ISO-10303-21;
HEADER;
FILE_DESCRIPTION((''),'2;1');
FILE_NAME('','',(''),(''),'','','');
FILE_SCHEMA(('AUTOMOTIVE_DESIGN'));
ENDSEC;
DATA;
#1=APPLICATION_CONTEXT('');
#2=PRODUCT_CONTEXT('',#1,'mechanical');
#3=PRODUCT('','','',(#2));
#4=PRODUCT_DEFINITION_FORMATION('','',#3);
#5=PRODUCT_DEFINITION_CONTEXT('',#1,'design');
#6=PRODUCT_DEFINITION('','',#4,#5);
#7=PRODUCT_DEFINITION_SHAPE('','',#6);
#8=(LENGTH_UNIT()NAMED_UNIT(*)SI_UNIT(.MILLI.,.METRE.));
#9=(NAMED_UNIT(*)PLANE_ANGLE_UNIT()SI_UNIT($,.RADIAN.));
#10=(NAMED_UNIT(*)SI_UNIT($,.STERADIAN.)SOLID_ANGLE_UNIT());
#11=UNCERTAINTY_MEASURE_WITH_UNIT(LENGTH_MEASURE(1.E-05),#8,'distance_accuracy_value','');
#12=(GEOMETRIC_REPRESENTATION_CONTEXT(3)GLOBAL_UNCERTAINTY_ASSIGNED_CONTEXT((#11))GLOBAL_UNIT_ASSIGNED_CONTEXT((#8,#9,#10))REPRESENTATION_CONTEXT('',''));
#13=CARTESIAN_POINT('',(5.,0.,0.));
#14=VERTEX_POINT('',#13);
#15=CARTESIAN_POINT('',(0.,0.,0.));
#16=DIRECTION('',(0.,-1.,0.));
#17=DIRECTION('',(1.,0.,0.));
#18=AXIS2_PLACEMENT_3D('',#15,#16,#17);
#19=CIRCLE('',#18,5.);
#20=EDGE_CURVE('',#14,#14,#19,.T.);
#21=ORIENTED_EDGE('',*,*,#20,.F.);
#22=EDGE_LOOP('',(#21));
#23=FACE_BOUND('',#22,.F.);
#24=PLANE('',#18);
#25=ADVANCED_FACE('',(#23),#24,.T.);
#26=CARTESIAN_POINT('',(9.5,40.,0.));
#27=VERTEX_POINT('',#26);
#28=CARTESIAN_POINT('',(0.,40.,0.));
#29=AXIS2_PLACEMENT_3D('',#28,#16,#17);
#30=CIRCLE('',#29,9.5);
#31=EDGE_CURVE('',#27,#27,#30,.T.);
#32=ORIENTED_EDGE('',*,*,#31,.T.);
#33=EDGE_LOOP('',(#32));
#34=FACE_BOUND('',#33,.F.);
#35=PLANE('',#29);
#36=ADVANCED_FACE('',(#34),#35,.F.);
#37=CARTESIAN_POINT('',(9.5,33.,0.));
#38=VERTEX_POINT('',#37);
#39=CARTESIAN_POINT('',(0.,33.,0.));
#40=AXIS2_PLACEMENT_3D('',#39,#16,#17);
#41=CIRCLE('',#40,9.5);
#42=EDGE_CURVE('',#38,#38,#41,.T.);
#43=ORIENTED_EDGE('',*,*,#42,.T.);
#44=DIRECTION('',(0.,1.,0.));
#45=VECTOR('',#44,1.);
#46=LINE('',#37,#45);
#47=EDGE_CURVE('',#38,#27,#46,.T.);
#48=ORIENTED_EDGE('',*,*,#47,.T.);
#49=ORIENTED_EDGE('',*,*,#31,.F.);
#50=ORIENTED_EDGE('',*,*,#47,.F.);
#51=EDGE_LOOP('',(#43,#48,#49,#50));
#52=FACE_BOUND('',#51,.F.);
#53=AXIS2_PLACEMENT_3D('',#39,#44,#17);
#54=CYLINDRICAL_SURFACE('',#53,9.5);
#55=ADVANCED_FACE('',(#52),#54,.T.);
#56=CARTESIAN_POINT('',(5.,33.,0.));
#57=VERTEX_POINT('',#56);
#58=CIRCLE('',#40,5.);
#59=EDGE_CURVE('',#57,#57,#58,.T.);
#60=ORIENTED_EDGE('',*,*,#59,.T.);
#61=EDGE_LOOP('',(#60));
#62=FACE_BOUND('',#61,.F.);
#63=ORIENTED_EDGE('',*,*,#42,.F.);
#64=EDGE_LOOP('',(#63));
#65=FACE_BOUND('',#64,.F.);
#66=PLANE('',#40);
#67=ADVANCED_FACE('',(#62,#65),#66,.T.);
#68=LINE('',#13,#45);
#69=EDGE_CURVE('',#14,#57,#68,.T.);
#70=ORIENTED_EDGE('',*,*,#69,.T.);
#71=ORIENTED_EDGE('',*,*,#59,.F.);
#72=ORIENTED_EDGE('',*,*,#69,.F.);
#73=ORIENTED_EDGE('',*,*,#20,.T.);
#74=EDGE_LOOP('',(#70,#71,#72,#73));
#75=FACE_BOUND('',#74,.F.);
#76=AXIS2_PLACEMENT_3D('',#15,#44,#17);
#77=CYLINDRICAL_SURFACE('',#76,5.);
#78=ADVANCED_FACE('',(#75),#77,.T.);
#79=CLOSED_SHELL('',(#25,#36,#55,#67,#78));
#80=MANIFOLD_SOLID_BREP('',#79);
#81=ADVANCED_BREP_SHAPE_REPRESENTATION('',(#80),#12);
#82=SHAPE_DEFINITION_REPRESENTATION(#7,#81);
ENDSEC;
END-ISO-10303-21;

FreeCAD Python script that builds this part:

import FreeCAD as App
import Part
import Sketcher
from FreeCAD import Vector


def add_polygon(sketch, points):
    """Adds a closed chain of lines whose ends are joined by coincident constraints."""
    first, n = sketch.GeometryCount, len(points)
    for a, b in zip(points, points[1:] + points[:1]):
        sketch.addGeometry(Part.LineSegment(App.Vector(*a, 0), App.Vector(*b, 0)), False)
    for i in range(n):
        sketch.addConstraint(Sketcher.Constraint("Coincident", first + i, 2, first + (i + 1) % n, 1))

doc = App.newDocument("Part")
body = doc.addObject("PartDesign::Body", "Body")

# Sketch on XY plane
sketch1 = body.newObject("Sketcher::SketchObject", "Sketch")
sketch1.AttachmentSupport = (doc.getObject("XY_Plane"), [""])
sketch1.MapMode = "FlatFace"
add_polygon(sketch1, [(0, 40), (0, 0), (5, 0), (5, 33), (9.5, 33), (9.5, 40)])  # lines 0-5
sketch1.addConstraint([
    Sketcher.Constraint("Vertical", 0),
    Sketcher.Constraint("Horizontal", 1),
    Sketcher.Constraint("Vertical", 2),
    Sketcher.Constraint("Horizontal", 3),
    Sketcher.Constraint("Vertical", 4),
    Sketcher.Constraint("Horizontal", 5),
    Sketcher.Constraint("Coincident", 0, 2, -1, 1),
    Sketcher.Constraint("DistanceY", 0, 2, 0, 1, 40.0),
    Sketcher.Constraint("DistanceY", 4, 1, 4, 2, 7.0),
    Sketcher.Constraint("DistanceX", 1, 1, 1, 2, 5.0),
    Sketcher.Constraint("DistanceX", 3, 1, 3, 2, 4.5),
])
revolution = body.newObject("PartDesign::Revolution", "Revolution")
revolution.Profile = sketch1
revolution.ReferenceAxis = (sketch1, ["V_Axis"])
revolution.Angle = 360

doc.recompute()
